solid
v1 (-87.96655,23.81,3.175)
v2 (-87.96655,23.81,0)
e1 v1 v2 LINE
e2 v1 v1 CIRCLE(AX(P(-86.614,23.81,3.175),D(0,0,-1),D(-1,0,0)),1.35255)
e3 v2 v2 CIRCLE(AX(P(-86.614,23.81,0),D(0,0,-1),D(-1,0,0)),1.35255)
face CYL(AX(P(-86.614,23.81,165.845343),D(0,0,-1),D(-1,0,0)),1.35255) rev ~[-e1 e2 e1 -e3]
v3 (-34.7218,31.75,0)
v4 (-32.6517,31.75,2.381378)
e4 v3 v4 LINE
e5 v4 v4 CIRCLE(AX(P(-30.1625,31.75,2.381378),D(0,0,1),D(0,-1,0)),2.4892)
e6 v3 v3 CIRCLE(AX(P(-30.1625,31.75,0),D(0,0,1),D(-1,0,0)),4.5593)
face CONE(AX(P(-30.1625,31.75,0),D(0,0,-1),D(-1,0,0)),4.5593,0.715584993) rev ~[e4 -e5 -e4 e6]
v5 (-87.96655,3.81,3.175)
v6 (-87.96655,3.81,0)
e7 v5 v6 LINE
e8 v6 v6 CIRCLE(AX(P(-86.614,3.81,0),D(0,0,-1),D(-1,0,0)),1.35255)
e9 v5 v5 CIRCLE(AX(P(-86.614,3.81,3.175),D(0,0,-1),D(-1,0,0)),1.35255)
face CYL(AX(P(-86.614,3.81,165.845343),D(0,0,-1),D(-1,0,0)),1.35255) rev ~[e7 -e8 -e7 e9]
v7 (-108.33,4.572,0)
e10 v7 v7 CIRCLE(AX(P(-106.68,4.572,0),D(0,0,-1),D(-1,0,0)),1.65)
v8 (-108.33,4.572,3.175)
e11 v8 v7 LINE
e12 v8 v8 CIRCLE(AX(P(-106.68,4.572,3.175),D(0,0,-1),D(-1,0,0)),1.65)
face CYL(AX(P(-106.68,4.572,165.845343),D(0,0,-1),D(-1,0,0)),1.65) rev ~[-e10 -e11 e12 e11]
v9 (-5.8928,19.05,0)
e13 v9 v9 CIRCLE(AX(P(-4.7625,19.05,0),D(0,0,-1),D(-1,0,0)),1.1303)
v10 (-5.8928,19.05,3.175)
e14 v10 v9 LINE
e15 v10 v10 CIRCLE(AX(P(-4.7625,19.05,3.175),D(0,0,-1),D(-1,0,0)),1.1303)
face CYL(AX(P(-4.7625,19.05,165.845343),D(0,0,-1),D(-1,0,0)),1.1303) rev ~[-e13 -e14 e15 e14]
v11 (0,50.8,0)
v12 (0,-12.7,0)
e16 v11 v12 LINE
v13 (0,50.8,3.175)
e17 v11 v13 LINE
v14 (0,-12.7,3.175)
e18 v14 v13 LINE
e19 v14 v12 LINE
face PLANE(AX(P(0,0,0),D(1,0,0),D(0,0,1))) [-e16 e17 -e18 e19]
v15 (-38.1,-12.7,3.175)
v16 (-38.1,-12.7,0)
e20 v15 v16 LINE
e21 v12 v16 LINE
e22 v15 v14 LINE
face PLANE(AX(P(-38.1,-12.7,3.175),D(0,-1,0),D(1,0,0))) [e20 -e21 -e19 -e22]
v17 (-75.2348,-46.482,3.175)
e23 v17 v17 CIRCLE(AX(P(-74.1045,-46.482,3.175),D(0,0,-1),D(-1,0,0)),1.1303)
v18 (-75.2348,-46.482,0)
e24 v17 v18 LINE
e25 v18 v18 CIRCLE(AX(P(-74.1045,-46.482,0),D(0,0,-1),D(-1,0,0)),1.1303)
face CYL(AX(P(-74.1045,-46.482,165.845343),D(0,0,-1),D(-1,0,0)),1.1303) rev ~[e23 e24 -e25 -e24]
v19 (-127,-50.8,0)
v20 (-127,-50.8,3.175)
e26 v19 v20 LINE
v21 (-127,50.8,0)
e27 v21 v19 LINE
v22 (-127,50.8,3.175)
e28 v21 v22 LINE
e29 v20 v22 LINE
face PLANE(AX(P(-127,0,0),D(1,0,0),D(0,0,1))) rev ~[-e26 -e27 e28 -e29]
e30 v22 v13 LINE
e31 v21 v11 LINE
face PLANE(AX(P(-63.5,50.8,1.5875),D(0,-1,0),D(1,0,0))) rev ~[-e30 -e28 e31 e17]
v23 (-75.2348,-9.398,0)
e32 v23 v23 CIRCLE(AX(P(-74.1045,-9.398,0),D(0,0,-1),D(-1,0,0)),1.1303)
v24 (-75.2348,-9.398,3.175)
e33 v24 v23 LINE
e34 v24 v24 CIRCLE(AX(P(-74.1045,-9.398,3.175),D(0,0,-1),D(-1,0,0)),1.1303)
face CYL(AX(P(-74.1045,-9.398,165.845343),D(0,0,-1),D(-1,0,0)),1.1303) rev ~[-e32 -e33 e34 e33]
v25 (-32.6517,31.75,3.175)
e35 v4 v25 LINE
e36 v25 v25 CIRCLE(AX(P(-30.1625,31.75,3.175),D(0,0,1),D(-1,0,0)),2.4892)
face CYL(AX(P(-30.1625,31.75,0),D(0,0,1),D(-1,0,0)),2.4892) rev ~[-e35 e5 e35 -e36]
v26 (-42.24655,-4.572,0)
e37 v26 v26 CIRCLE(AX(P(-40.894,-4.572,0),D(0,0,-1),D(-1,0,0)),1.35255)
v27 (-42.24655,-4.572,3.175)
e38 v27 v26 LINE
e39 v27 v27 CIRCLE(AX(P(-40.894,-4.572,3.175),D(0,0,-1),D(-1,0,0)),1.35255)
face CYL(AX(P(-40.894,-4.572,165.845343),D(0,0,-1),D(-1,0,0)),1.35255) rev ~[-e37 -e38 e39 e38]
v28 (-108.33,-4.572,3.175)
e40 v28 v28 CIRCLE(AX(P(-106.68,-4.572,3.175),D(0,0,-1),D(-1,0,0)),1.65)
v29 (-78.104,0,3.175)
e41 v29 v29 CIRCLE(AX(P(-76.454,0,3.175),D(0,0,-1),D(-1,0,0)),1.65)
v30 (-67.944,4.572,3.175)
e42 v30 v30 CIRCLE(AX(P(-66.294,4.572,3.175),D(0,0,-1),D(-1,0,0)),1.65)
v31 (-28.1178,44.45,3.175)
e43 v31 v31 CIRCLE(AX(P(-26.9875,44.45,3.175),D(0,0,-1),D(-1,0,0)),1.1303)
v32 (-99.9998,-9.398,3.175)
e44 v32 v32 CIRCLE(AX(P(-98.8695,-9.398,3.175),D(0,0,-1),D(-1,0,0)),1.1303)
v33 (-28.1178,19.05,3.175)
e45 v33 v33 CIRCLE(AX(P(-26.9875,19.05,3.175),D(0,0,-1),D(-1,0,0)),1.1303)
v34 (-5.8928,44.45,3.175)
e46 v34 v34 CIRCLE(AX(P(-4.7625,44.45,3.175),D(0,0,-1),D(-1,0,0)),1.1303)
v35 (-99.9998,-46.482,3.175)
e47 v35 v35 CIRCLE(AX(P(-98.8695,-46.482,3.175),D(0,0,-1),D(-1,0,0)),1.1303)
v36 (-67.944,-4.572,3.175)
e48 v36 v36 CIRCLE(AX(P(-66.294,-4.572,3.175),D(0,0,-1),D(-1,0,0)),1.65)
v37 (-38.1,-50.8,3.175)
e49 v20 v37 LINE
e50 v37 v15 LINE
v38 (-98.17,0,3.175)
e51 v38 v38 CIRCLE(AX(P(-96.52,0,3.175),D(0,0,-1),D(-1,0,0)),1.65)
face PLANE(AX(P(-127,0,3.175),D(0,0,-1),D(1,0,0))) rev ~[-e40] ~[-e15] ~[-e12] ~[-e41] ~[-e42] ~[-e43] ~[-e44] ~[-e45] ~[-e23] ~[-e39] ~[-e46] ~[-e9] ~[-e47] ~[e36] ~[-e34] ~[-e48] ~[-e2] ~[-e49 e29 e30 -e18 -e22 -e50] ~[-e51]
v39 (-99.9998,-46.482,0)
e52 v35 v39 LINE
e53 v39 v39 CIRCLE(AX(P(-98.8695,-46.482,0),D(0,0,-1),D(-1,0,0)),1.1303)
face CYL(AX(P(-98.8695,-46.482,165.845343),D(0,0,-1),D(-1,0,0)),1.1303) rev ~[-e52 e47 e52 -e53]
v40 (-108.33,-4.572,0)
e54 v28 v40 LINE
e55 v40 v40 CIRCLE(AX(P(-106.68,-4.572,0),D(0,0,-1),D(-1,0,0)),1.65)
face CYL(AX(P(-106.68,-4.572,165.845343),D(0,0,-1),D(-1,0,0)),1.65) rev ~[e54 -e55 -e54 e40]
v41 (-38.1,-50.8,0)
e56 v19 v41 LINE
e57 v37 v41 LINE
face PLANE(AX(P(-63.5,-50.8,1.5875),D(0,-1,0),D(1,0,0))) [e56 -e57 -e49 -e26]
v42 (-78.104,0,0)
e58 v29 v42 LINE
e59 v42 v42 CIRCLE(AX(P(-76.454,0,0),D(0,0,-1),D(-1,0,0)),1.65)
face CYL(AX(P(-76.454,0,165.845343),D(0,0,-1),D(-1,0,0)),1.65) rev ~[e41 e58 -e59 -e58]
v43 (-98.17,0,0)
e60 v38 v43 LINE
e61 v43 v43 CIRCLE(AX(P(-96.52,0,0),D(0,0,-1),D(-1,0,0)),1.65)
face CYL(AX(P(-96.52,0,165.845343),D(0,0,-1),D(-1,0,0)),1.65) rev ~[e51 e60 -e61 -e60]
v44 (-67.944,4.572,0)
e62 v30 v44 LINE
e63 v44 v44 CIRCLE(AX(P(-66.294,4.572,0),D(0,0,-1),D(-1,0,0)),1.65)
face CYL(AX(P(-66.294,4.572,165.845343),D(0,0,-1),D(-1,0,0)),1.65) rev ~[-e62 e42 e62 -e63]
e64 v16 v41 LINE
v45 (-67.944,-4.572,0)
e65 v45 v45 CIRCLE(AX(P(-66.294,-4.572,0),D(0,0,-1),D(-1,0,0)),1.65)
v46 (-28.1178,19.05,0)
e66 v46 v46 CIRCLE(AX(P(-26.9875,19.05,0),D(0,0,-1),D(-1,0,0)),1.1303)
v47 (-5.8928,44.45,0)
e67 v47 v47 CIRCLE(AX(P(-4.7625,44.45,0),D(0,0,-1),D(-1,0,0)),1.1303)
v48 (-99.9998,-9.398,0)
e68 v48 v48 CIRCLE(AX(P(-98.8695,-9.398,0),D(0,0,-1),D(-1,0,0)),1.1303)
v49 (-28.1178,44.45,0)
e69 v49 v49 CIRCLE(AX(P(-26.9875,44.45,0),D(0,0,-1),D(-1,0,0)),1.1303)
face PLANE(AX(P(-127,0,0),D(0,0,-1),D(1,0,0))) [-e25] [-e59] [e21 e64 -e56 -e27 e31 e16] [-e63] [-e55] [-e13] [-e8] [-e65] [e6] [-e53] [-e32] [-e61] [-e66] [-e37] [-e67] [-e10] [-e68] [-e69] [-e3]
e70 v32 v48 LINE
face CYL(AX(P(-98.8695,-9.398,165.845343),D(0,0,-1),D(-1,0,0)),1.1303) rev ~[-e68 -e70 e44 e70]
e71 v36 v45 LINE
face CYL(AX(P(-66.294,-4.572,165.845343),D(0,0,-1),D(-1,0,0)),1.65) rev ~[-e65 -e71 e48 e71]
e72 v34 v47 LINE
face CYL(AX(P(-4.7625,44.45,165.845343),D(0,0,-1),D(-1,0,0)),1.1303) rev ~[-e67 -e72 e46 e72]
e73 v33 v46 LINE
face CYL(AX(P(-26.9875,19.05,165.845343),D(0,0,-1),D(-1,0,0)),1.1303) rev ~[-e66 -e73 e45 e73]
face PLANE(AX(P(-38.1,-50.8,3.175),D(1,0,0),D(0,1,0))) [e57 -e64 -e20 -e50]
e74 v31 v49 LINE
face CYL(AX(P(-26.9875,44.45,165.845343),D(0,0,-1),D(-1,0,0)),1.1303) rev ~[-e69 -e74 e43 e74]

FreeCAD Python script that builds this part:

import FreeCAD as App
import Part
import Sketcher
Q = App.Units.Quantity


def add_polygon(sketch, points):
    """Adds a closed chain of lines whose ends are joined by coincident constraints."""
    first, n = sketch.GeometryCount, len(points)
    for a, b in zip(points, points[1:] + points[:1]):
        sketch.addGeometry(Part.LineSegment(App.Vector(*a, 0), App.Vector(*b, 0)), False)
    for i in range(n):
        sketch.addConstraint(Sketcher.Constraint("Coincident", first + i, 2, first + (i + 1) % n, 1))

doc = App.newDocument("Part")
body = doc.addObject("PartDesign::Body", "Body")

# Sketch on XZ plane
sketch1 = body.newObject("Sketcher::SketchObject", "Sketch")
sketch1.AttachmentSupport = (doc.getObject("XZ_Plane"), [""])
sketch1.MapMode = "FlatFace"
add_polygon(sketch1, [(-127, 3.175), (-127, 0), (0, 0), (0, 3.175)])  # lines 0-3
sketch1.addConstraint(Sketcher.Constraint("Vertical", 0))
sketch1.addConstraint(Sketcher.Constraint("Horizontal", 1))
sketch1.addConstraint(Sketcher.Constraint("Vertical", 2))
sketch1.addConstraint(Sketcher.Constraint("Horizontal", 3))
sketch1.addConstraint(Sketcher.Constraint("Coincident", 1, 2, -1, 1))
sketch1.addConstraint(Sketcher.Constraint("DistanceX", 1, 1, 1, 2, Q("5 in")))
sketch1.addConstraint(Sketcher.Constraint("DistanceY", 0, 2, 0, 1, Q("0.125 in")))
pad1 = body.newObject("PartDesign::Pad", "Pad")
pad1.Profile = sketch1
pad1.Length = Q("4 in")
pad1.Midplane = True

# Sketch on XY plane
sketch2 = body.newObject("Sketcher::SketchObject", "Sketch001")
sketch2.AttachmentSupport = (doc.getObject("XY_Plane"), [""])
sketch2.MapMode = "FlatFace"
sketch2.AttachmentOffset = App.Placement(App.Vector(0, 0, 0.125 * 25.4), App.Rotation())
sketch2.addGeometry(Part.Circle(App.Vector(-66.294, 4.572, 0), App.Vector(0, 0, 1), 1.65), False)
sketch2.addGeometry(Part.Circle(App.Vector(-66.294, -4.572, 0), App.Vector(0, 0, 1), 1.65), False)
sketch2.addGeometry(Part.Circle(App.Vector(-76.454, 0, 0), App.Vector(0, 0, 1), 1.65), False)
sketch2.addGeometry(Part.Circle(App.Vector(-96.52, 0, 0), App.Vector(0, 0, 1), 1.65), False)
sketch2.addGeometry(Part.Circle(App.Vector(-106.68, 4.572, 0), App.Vector(0, 0, 1), 1.65), False)
sketch2.addGeometry(Part.Circle(App.Vector(-106.68, -4.572, 0), App.Vector(0, 0, 1), 1.65), False)
sketch2.addConstraint(Sketcher.Constraint("Equal", 0, 1))
sketch2.addConstraint(Sketcher.Constraint("Equal", 1, 2))
sketch2.addConstraint(Sketcher.Constraint("Equal", 2, 3))
sketch2.addConstraint(Sketcher.Constraint("Equal", 3, 4))
sketch2.addConstraint(Sketcher.Constraint("Equal", 4, 5))
sketch2.addConstraint(Sketcher.Constraint("Symmetric", 0, 3, 1, 3, -1))
sketch2.addConstraint(Sketcher.Constraint("Symmetric", 4, 3, 5, 3, -1))
sketch2.addConstraint(Sketcher.Constraint("PointOnObject", 2, 3, -1))
sketch2.addConstraint(Sketcher.Constraint("PointOnObject", 3, 3, -1))
sketch2.addConstraint(Sketcher.Constraint("Horizontal", 0, 3, 4, 3))
sketch2.addConstraint(Sketcher.Constraint("DistanceX", 3, 3, -1, 1, Q("3.8 in")))
sketch2.addConstraint(Sketcher.Constraint("DistanceX", 4, 3, -1, 1, Q("4.2 in")))
sketch2.addConstraint(Sketcher.Constraint("DistanceX", 2, 3, 0, 3, Q("0.4 in")))
sketch2.addConstraint(Sketcher.Constraint("Diameter", 0, 3.3))
sketch2.addConstraint(Sketcher.Constraint("DistanceX", 0, 3, -1, 1, Q("2.61 in")))
sketch2.addConstraint(Sketcher.Constraint("DistanceY", -1, 1, 0, 3, Q("0.18 in")))
doc.recompute()
hole = body.newObject("PartDesign::Hole", "Hole")
hole.Profile = sketch2
hole.ThreadType = "None"
hole.Diameter = 3.3
hole.DepthType = "ThroughAll"

# Sketch on XY plane
sketch3 = body.newObject("Sketcher::SketchObject", "Sketch002")
sketch3.AttachmentSupport = (doc.getObject("XY_Plane"), [""])
sketch3.MapMode = "FlatFace"
sketch3.AttachmentOffset = App.Placement(App.Vector(0, 0, 0.125 * 25.4), App.Rotation())
add_polygon(sketch3, [(-38.1, -12.7), (-38.1, -50.8), (0, -50.8), (0, -12.7)])  # lines 0-3
sketch3.addConstraint(Sketcher.Constraint("Vertical", 0))
sketch3.addConstraint(Sketcher.Constraint("Horizontal", 1))
sketch3.addConstraint(Sketcher.Constraint("Vertical", 2))
sketch3.addConstraint(Sketcher.Constraint("Horizontal", 3))
sketch3.addConstraint(Sketcher.Constraint("PointOnObject", 1, 2, -2))
sketch3.addConstraint(Sketcher.Constraint("Equal", 3, 0))
sketch3.addConstraint(Sketcher.Constraint("DistanceX", 1, 1, 1, 2, Q("1.5 in")))
sketch3.addConstraint(Sketcher.Constraint("DistanceY", 0, 2, -1, 1, Q("2 in")))
pocket1 = body.newObject("PartDesign::Pocket", "Pocket")
pocket1.Profile = sketch3
pocket1.Type = "ThroughAll"

# Sketch on XY plane
sketch4 = body.newObject("Sketcher::SketchObject", "Sketch003")
sketch4.AttachmentSupport = (doc.getObject("XY_Plane"), [""])
sketch4.MapMode = "FlatFace"
sketch4.AttachmentOffset = App.Placement(App.Vector(0, 0, 0.125 * 25.4), App.Rotation())
sketch4.addGeometry(Part.Circle(App.Vector(-4.7625, 19.05, 0), App.Vector(0, 0, 1), 1.1303), False)
sketch4.addGeometry(Part.Circle(App.Vector(-26.9875, 19.05, 0), App.Vector(0, 0, 1), 1.1303), False)
sketch4.addGeometry(Part.Circle(App.Vector(-26.9875, 44.45, 0), App.Vector(0, 0, 1), 1.1303), False)
sketch4.addGeometry(Part.Circle(App.Vector(-4.7625, 44.45, 0), App.Vector(0, 0, 1), 1.1303), False)
sketch4.addConstraint(Sketcher.Constraint("Equal", 0, 1))
sketch4.addConstraint(Sketcher.Constraint("Equal", 1, 2))
sketch4.addConstraint(Sketcher.Constraint("Equal", 2, 3))
sketch4.addConstraint(Sketcher.Constraint("Horizontal", 0, 3, 1, 3))
sketch4.addConstraint(Sketcher.Constraint("Horizontal", 2, 3, 3, 3))
sketch4.addConstraint(Sketcher.Constraint("Vertical", 1, 3, 2, 3))
sketch4.addConstraint(Sketcher.Constraint("Vertical", 0, 3, 3, 3))
sketch4.addConstraint(Sketcher.Constraint("Diameter", 0, Q("0.089 in")))
sketch4.addConstraint(Sketcher.Constraint("DistanceY", 1, 3, 2, 3, Q("1 in")))
sketch4.addConstraint(Sketcher.Constraint("DistanceY", -1, 1, 0, 3, Q("0.75 in")))
sketch4.addConstraint(Sketcher.Constraint("DistanceX", 0, 3, -1, 1, Q("0.1875 in")))
sketch4.addConstraint(Sketcher.Constraint("DistanceX", 1, 3, -1, 1, Q("1.0625 in")))
doc.recompute()
hole2 = body.newObject("PartDesign::Hole", "Hole001")
hole2.Profile = sketch4
hole2.ThreadType = "None"
hole2.Diameter = Q("0.089 in")
hole2.DepthType = "ThroughAll"

# Sketch on XY plane
sketch5 = body.newObject("Sketcher::SketchObject", "Sketch004")
sketch5.AttachmentSupport = (doc.getObject("XY_Plane"), [""])
sketch5.MapMode = "FlatFace"
sketch5.AttachmentOffset = App.Placement(App.Vector(0, 0, 0.125 * 25.4), App.Rotation())
sketch5.addGeometry(Part.Circle(App.Vector(-74.1045, -46.482, 0), App.Vector(0, 0, 1), 1.1303), False)
sketch5.addGeometry(Part.Circle(App.Vector(-98.8695, -46.482, 0), App.Vector(0, 0, 1), 1.1303), False)
sketch5.addGeometry(Part.Circle(App.Vector(-98.8695, -9.398, 0), App.Vector(0, 0, 1), 1.1303), False)
sketch5.addGeometry(Part.Circle(App.Vector(-74.1045, -9.398, 0), App.Vector(0, 0, 1), 1.1303), False)
sketch5.addConstraint(Sketcher.Constraint("Equal", 0, 1))
sketch5.addConstraint(Sketcher.Constraint("Equal", 1, 2))
sketch5.addConstraint(Sketcher.Constraint("Equal", 2, 3))
sketch5.addConstraint(Sketcher.Constraint("Horizontal", 0, 3, 1, 3))
sketch5.addConstraint(Sketcher.Constraint("Horizontal", 2, 3, 3, 3))
sketch5.addConstraint(Sketcher.Constraint("Vertical", 1, 3, 2, 3))
sketch5.addConstraint(Sketcher.Constraint("Vertical", 0, 3, 3, 3))
sketch5.addConstraint(Sketcher.Constraint("Diameter", 0, Q("0.089 in")))
sketch5.addConstraint(Sketcher.Constraint("DistanceY", 0, 3, -1, 1, Q("1.83 in")))
sketch5.addConstraint(Sketcher.Constraint("DistanceY", 2, 3, -1, 1, Q("0.37 in")))
sketch5.addConstraint(Sketcher.Constraint("DistanceX", 1, 3, 0, 3, Q("0.975 in")))
sketch5.addConstraint(Sketcher.Constraint("DistanceX", 0, 3, -1, 1, Q("2.9175 in")))
doc.recompute()
hole3 = body.newObject("PartDesign::Hole", "Hole002")
hole3.Profile = sketch5
hole3.ThreadType = "None"
hole3.Diameter = Q("0.089 in")
hole3.DepthType = "ThroughAll"

# Sketch on XY plane
sketch6 = body.newObject("Sketcher::SketchObject", "Sketch005")
sketch6.AttachmentSupport = (doc.getObject("XY_Plane"), [""])
sketch6.MapMode = "FlatFace"
sketch6.AttachmentOffset = App.Placement(App.Vector(0, 0, 0.125 * 25.4), App.Rotation())
sketch6.addGeometry(Part.Circle(App.Vector(-40.894, -4.572, 0), App.Vector(0, 0, 1), 1.35255), False)
sketch6.addGeometry(Part.Circle(App.Vector(-86.614, 3.81, 0), App.Vector(0, 0, 1), 1.35255), False)
sketch6.addGeometry(Part.Circle(App.Vector(-86.614, 23.81, 0), App.Vector(0, 0, 1), 1.35255), False)
sketch6.addConstraint(Sketcher.Constraint("Equal", 0, 1))
sketch6.addConstraint(Sketcher.Constraint("Equal", 1, 2))
sketch6.addConstraint(Sketcher.Constraint("Vertical", 1, 3, 2, 3))
sketch6.addConstraint(Sketcher.Constraint("Diameter", 0, Q("0.1065 in")))
sketch6.addConstraint(Sketcher.Constraint("DistanceX", 1, 3, 0, 3, Q("1.8 in")))
sketch6.addConstraint(Sketcher.Constraint("DistanceX", 0, 3, -1, 1, Q("1.61 in")))
sketch6.addConstraint(Sketcher.Constraint("DistanceY", 0, 3, -1, 1, Q("0.18 in")))
sketch6.addConstraint(Sketcher.Constraint("DistanceY", -1, 1, 1, 3, Q("0.15 in")))
sketch6.addConstraint(Sketcher.Constraint("DistanceY", -1, 1, 2, 3, 23.81))
doc.recompute()
hole4 = body.newObject("PartDesign::Hole", "Hole003")
hole4.Profile = sketch6
hole4.ThreadType = "None"
hole4.Diameter = Q("0.1065 in")
hole4.DepthType = "ThroughAll"

# Sketch on XY plane
sketch7 = body.newObject("Sketcher::SketchObject", "Sketch006")
sketch7.AttachmentSupport = (doc.getObject("XY_Plane"), [""])
sketch7.MapMode = "FlatFace"
sketch7.addGeometry(Part.Circle(App.Vector(-30.1625, 31.75, 0), App.Vector(0, 0, 1), 2.4892), False)
sketch7.addConstraint(Sketcher.Constraint("Diameter", 0, Q("0.196 in")))
sketch7.addConstraint(Sketcher.Constraint("DistanceY", -1, 1, 0, 3, Q("1.25 in")))
sketch7.addConstraint(Sketcher.Constraint("DistanceX", 0, 3, -1, 1, Q("1.1875 in")))
doc.recompute()
hole5 = body.newObject("PartDesign::Hole", "Hole004")
hole5.Profile = sketch7
hole5.ThreadType = "None"
hole5.Diameter = Q("0.196 in")
hole5.DepthType = "ThroughAll"
hole5.HoleCutType = "Countersink"
hole5.HoleCutDiameter = Q("0.359 in")
hole5.HoleCutCountersinkAngle = 82
hole5.Reversed = True

doc.recompute()
